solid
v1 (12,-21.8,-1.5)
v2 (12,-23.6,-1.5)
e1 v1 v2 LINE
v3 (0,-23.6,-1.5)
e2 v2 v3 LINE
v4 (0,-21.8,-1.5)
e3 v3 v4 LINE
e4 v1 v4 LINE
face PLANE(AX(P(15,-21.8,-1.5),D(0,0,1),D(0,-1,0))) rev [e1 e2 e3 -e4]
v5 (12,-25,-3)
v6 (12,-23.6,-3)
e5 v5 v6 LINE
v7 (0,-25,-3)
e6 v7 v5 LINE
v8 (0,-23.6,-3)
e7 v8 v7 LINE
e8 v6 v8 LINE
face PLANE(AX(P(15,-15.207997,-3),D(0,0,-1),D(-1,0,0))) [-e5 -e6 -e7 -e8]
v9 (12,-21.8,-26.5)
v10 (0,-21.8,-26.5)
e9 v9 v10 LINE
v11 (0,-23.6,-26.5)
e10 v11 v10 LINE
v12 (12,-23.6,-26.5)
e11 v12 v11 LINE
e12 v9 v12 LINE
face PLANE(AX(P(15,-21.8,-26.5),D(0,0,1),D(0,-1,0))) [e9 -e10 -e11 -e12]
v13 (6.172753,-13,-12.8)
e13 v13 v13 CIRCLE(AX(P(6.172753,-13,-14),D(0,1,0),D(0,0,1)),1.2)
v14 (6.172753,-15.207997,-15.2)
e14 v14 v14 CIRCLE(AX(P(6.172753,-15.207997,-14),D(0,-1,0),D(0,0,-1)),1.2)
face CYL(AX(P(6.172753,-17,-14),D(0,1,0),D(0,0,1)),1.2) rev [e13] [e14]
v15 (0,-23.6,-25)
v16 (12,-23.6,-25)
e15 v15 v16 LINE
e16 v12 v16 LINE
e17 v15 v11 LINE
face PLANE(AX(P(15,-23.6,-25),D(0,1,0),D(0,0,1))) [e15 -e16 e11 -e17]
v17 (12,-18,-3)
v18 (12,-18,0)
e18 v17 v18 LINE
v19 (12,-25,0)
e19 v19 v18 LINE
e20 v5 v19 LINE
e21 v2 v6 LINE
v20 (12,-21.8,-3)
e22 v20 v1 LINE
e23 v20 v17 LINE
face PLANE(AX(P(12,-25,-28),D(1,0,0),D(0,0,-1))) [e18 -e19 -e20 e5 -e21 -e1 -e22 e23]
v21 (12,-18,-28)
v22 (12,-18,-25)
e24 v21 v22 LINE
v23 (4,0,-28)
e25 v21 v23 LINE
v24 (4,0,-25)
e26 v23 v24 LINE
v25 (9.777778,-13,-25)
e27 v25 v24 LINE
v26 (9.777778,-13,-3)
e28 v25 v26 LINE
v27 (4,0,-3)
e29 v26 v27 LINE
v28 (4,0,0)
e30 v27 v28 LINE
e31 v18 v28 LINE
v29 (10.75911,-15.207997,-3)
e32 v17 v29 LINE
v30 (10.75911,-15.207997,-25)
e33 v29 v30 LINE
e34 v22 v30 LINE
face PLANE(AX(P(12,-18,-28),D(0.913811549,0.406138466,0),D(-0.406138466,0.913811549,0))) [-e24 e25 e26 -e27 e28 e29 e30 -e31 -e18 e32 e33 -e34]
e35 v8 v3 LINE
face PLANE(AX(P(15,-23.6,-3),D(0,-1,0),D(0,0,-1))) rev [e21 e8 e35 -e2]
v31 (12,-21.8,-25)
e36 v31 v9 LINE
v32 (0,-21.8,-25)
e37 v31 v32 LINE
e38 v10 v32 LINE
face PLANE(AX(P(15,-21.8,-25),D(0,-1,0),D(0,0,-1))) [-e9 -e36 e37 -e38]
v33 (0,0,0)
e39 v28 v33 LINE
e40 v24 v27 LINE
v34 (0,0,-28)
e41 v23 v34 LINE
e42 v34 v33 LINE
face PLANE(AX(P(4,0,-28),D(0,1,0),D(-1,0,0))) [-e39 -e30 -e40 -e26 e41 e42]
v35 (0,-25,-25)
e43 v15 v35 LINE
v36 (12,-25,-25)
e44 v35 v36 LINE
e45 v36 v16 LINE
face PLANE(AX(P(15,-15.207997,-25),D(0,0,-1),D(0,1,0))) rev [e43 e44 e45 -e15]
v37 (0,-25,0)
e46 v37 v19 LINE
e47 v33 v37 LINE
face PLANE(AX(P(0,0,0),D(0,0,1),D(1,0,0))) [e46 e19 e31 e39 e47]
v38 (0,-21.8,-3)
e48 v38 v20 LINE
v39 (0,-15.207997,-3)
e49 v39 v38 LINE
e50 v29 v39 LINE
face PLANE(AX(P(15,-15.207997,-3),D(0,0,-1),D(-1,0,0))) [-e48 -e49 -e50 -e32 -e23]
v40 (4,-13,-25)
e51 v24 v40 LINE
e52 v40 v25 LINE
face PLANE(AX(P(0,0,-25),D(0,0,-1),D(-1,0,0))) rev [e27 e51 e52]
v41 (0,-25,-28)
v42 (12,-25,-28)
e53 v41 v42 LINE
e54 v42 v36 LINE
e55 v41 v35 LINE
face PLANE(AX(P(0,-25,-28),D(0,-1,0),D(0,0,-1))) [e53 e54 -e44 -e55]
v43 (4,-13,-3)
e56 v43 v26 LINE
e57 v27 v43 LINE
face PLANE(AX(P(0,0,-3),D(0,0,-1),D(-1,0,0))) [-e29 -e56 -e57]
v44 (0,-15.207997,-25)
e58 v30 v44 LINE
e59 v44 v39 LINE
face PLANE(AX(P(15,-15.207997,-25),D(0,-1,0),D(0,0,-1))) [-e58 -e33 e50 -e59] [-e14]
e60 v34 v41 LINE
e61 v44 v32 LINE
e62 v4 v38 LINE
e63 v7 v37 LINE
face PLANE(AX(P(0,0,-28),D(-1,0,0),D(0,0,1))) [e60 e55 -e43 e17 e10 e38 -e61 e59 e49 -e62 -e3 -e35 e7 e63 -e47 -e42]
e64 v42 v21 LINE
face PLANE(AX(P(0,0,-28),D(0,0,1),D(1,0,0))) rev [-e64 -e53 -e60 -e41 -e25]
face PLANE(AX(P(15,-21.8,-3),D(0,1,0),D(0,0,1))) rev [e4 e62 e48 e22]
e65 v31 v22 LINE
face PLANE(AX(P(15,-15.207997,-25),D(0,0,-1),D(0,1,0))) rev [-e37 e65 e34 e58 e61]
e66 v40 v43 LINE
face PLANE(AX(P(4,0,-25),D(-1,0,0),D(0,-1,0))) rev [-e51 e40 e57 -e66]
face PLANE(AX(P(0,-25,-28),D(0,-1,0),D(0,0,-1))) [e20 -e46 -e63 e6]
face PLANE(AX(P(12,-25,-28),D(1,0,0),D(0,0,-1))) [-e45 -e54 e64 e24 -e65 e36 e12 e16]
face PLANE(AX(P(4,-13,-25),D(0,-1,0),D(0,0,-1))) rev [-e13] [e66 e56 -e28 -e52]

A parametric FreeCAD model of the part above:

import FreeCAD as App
import Part
import Sketcher
Q = App.Units.Quantity


def add_polygon(sketch, points):
    """Adds a closed chain of lines whose ends are joined by coincident constraints."""
    first, n = sketch.GeometryCount, len(points)
    for a, b in zip(points, points[1:] + points[:1]):
        sketch.addGeometry(Part.LineSegment(App.Vector(*a, 0), App.Vector(*b, 0)), False)
    for i in range(n):
        sketch.addConstraint(Sketcher.Constraint("Coincident", first + i, 2, first + (i + 1) % n, 1))

doc = App.newDocument("Part")
body = doc.addObject("PartDesign::Body", "Body")

# Sketch on XY plane
sketch1 = doc.addObject("Sketcher::SketchObject", "Sketch")
body.addObject(sketch1)
sketch1.AttachmentSupport = (doc.XY_Plane, [""])
sketch1.MapMode = "FlatFace"
add_polygon(sketch1, [(0, 0), (0, -25), (12, -25), (12, -18), (4, 0)])  # lines 0-4
sketch1.addConstraint(Sketcher.Constraint("Vertical", 0))
sketch1.addConstraint(Sketcher.Constraint("Horizontal", 1))
sketch1.addConstraint(Sketcher.Constraint("Vertical", 2))
sketch1.addConstraint(Sketcher.Constraint("Horizontal", 4))
sketch1.addConstraint(Sketcher.Constraint("Coincident", 4, 2, -1, 1))
sketch1.addConstraint(Sketcher.Constraint("DistanceX", 1, 1, 1, 2, Q("12 mm")))
sketch1.addConstraint(Sketcher.Constraint("DistanceX", 4, 2, 4, 1, Q("4 mm")))
sketch1.addConstraint(Sketcher.Constraint("DistanceY", 0, 2, 0, 1, Q("25 mm")))
sketch1.addConstraint(Sketcher.Constraint("DistanceY", 2, 1, 2, 2, Q("7 mm")))
pad1 = doc.addObject("PartDesign::Pad", "Pad")
body.addObject(pad1)
pad1.Profile = sketch1
pad1.Length = 28
pad1.Reversed = True

# Sketch on YZ plane
sketch2 = doc.addObject("Sketcher::SketchObject", "Sketch001")
body.addObject(sketch2)
sketch2.AttachmentSupport = (doc.YZ_Plane, [""])
sketch2.MapMode = "FlatFace"
add_polygon(sketch2, [(-15, -25), (-25, -25), (-25, -3), (-15, -3)])  # lines 0-3
sketch2.addConstraint(Sketcher.Constraint("Horizontal", 0))
sketch2.addConstraint(Sketcher.Constraint("Vertical", 1))
sketch2.addConstraint(Sketcher.Constraint("Horizontal", 2))
sketch2.addConstraint(Sketcher.Constraint("Vertical", 3))
sketch2.addConstraint(Sketcher.Constraint("DistanceX", 0, 2, 0, 1, Q("10 mm")))
sketch2.addConstraint(Sketcher.Constraint("DistanceY", 1, 1, 1, 2, Q("22 mm")))
sketch2.addConstraint(Sketcher.Constraint("DistanceY", 0, 2, -1, 1, Q("25 mm")))
sketch2.addConstraint(Sketcher.Constraint("DistanceX", 0, 2, -1, 1, Q("25.207997 mm")))
pocket1 = doc.addObject("PartDesign::Pocket", "Pocket")
body.addObject(pocket1)
pocket1.Profile = sketch2
pocket1.Length = 15
pocket1.Reversed = True

# Sketch on YZ plane
sketch3 = doc.addObject("Sketcher::SketchObject", "Sketch002")
body.addObject(sketch3)
sketch3.AttachmentSupport = (doc.YZ_Plane, [""])
sketch3.MapMode = "FlatFace"
add_polygon(sketch3, [(-21.8, -3), (-23.6, -3), (-23.6, -1.5), (-21.8, -1.5)])  # lines 0-3
sketch3.addConstraint(Sketcher.Constraint("Horizontal", 0))
sketch3.addConstraint(Sketcher.Constraint("Vertical", 1))
sketch3.addConstraint(Sketcher.Constraint("Horizontal", 2))
sketch3.addConstraint(Sketcher.Constraint("Vertical", 3))
sketch3.addConstraint(Sketcher.Constraint("DistanceX", 0, 2, 0, 1, Q("1.8 mm")))
sketch3.addConstraint(Sketcher.Constraint("DistanceY", 1, 1, 1, 2, Q("1.5 mm")))
sketch3.addConstraint(Sketcher.Constraint("DistanceY", 0, 2, -1, 1, Q("3 mm")))
sketch3.addConstraint(Sketcher.Constraint("DistanceX", 0, 2, -1, 1, Q("23.6 mm")))
pocket2 = doc.addObject("PartDesign::Pocket", "Pocket001")
body.addObject(pocket2)
pocket2.Profile = sketch3
pocket2.Length = 15
pocket2.Reversed = True
doc.recompute()

datumplane = doc.addObject("PartDesign::Plane", "DatumPlane")
body.addObject(datumplane)
datumplane.AttachmentSupport = (doc.XY_Plane, [""])
datumplane.MapMode = "FlatFace"
datumplane.AttachmentOffset = App.Placement(App.Vector(0, 0, -14), App.Rotation())
mirrored = doc.addObject("PartDesign::Mirrored", "Mirrored")
body.addObject(mirrored)
mirrored.Originals = [pocket2]
mirrored.MirrorPlane = (datumplane, [""])
body.Tip = mirrored

# Sketch on XY plane
sketch4 = doc.addObject("Sketcher::SketchObject", "Sketch003")
body.addObject(sketch4)
sketch4.AttachmentSupport = (doc.XY_Plane, [""])
sketch4.MapMode = "FlatFace"
sketch4.AttachmentOffset = App.Placement(App.Vector(0, 0, -14), App.Rotation())
add_polygon(sketch4, [(4, 0), (4, -13), (10, -13)])  # lines 0-2
sketch4.addConstraint(Sketcher.Constraint("Vertical", 0))
sketch4.addConstraint(Sketcher.Constraint("Horizontal", 1))
sketch4.addConstraint(Sketcher.Constraint("PointOnObject", 2, 2, -1))
sketch4.addConstraint(Sketcher.Constraint("DistanceY", 0, 2, 0, 1, Q("13 mm")))
sketch4.addConstraint(Sketcher.Constraint("DistanceX", -1, 1, 0, 2, Q("4 mm")))
sketch4.addConstraint(Sketcher.Constraint("DistanceX", 1, 1, 1, 2, Q("5.777778 mm")))
pocket3 = doc.addObject("PartDesign::Pocket", "Pocket002")
body.addObject(pocket3)
pocket3.Profile = sketch4
pocket3.Length = 22
pocket3.Midplane = True

# Sketch on XZ plane
sketch5 = doc.addObject("Sketcher::SketchObject", "Sketch004")
body.addObject(sketch5)
sketch5.AttachmentSupport = (doc.XZ_Plane, [""])
sketch5.MapMode = "FlatFace"
sketch5.AttachmentOffset = App.Placement(App.Vector(0, 0, 13), App.Rotation())
sketch5.addGeometry(Part.Circle(App.Vector(6.2, -14, 0), App.Vector(0, 0, 1), 1.2), False)
sketch5.addConstraint(Sketcher.Constraint("Diameter", 0, Q("2.4 mm")))
sketch5.addConstraint(Sketcher.Constraint("DistanceY", 0, 3, -1, 1, Q("14 mm")))
sketch5.addConstraint(Sketcher.Constraint("DistanceX", -1, 1, 0, 3, Q("6.172753 mm")))
pocket4 = doc.addObject("PartDesign::Pocket", "Pocket003")
body.addObject(pocket4)
pocket4.Profile = sketch5
pocket4.Length = 4
pocket4.Reversed = True

doc.recompute()
